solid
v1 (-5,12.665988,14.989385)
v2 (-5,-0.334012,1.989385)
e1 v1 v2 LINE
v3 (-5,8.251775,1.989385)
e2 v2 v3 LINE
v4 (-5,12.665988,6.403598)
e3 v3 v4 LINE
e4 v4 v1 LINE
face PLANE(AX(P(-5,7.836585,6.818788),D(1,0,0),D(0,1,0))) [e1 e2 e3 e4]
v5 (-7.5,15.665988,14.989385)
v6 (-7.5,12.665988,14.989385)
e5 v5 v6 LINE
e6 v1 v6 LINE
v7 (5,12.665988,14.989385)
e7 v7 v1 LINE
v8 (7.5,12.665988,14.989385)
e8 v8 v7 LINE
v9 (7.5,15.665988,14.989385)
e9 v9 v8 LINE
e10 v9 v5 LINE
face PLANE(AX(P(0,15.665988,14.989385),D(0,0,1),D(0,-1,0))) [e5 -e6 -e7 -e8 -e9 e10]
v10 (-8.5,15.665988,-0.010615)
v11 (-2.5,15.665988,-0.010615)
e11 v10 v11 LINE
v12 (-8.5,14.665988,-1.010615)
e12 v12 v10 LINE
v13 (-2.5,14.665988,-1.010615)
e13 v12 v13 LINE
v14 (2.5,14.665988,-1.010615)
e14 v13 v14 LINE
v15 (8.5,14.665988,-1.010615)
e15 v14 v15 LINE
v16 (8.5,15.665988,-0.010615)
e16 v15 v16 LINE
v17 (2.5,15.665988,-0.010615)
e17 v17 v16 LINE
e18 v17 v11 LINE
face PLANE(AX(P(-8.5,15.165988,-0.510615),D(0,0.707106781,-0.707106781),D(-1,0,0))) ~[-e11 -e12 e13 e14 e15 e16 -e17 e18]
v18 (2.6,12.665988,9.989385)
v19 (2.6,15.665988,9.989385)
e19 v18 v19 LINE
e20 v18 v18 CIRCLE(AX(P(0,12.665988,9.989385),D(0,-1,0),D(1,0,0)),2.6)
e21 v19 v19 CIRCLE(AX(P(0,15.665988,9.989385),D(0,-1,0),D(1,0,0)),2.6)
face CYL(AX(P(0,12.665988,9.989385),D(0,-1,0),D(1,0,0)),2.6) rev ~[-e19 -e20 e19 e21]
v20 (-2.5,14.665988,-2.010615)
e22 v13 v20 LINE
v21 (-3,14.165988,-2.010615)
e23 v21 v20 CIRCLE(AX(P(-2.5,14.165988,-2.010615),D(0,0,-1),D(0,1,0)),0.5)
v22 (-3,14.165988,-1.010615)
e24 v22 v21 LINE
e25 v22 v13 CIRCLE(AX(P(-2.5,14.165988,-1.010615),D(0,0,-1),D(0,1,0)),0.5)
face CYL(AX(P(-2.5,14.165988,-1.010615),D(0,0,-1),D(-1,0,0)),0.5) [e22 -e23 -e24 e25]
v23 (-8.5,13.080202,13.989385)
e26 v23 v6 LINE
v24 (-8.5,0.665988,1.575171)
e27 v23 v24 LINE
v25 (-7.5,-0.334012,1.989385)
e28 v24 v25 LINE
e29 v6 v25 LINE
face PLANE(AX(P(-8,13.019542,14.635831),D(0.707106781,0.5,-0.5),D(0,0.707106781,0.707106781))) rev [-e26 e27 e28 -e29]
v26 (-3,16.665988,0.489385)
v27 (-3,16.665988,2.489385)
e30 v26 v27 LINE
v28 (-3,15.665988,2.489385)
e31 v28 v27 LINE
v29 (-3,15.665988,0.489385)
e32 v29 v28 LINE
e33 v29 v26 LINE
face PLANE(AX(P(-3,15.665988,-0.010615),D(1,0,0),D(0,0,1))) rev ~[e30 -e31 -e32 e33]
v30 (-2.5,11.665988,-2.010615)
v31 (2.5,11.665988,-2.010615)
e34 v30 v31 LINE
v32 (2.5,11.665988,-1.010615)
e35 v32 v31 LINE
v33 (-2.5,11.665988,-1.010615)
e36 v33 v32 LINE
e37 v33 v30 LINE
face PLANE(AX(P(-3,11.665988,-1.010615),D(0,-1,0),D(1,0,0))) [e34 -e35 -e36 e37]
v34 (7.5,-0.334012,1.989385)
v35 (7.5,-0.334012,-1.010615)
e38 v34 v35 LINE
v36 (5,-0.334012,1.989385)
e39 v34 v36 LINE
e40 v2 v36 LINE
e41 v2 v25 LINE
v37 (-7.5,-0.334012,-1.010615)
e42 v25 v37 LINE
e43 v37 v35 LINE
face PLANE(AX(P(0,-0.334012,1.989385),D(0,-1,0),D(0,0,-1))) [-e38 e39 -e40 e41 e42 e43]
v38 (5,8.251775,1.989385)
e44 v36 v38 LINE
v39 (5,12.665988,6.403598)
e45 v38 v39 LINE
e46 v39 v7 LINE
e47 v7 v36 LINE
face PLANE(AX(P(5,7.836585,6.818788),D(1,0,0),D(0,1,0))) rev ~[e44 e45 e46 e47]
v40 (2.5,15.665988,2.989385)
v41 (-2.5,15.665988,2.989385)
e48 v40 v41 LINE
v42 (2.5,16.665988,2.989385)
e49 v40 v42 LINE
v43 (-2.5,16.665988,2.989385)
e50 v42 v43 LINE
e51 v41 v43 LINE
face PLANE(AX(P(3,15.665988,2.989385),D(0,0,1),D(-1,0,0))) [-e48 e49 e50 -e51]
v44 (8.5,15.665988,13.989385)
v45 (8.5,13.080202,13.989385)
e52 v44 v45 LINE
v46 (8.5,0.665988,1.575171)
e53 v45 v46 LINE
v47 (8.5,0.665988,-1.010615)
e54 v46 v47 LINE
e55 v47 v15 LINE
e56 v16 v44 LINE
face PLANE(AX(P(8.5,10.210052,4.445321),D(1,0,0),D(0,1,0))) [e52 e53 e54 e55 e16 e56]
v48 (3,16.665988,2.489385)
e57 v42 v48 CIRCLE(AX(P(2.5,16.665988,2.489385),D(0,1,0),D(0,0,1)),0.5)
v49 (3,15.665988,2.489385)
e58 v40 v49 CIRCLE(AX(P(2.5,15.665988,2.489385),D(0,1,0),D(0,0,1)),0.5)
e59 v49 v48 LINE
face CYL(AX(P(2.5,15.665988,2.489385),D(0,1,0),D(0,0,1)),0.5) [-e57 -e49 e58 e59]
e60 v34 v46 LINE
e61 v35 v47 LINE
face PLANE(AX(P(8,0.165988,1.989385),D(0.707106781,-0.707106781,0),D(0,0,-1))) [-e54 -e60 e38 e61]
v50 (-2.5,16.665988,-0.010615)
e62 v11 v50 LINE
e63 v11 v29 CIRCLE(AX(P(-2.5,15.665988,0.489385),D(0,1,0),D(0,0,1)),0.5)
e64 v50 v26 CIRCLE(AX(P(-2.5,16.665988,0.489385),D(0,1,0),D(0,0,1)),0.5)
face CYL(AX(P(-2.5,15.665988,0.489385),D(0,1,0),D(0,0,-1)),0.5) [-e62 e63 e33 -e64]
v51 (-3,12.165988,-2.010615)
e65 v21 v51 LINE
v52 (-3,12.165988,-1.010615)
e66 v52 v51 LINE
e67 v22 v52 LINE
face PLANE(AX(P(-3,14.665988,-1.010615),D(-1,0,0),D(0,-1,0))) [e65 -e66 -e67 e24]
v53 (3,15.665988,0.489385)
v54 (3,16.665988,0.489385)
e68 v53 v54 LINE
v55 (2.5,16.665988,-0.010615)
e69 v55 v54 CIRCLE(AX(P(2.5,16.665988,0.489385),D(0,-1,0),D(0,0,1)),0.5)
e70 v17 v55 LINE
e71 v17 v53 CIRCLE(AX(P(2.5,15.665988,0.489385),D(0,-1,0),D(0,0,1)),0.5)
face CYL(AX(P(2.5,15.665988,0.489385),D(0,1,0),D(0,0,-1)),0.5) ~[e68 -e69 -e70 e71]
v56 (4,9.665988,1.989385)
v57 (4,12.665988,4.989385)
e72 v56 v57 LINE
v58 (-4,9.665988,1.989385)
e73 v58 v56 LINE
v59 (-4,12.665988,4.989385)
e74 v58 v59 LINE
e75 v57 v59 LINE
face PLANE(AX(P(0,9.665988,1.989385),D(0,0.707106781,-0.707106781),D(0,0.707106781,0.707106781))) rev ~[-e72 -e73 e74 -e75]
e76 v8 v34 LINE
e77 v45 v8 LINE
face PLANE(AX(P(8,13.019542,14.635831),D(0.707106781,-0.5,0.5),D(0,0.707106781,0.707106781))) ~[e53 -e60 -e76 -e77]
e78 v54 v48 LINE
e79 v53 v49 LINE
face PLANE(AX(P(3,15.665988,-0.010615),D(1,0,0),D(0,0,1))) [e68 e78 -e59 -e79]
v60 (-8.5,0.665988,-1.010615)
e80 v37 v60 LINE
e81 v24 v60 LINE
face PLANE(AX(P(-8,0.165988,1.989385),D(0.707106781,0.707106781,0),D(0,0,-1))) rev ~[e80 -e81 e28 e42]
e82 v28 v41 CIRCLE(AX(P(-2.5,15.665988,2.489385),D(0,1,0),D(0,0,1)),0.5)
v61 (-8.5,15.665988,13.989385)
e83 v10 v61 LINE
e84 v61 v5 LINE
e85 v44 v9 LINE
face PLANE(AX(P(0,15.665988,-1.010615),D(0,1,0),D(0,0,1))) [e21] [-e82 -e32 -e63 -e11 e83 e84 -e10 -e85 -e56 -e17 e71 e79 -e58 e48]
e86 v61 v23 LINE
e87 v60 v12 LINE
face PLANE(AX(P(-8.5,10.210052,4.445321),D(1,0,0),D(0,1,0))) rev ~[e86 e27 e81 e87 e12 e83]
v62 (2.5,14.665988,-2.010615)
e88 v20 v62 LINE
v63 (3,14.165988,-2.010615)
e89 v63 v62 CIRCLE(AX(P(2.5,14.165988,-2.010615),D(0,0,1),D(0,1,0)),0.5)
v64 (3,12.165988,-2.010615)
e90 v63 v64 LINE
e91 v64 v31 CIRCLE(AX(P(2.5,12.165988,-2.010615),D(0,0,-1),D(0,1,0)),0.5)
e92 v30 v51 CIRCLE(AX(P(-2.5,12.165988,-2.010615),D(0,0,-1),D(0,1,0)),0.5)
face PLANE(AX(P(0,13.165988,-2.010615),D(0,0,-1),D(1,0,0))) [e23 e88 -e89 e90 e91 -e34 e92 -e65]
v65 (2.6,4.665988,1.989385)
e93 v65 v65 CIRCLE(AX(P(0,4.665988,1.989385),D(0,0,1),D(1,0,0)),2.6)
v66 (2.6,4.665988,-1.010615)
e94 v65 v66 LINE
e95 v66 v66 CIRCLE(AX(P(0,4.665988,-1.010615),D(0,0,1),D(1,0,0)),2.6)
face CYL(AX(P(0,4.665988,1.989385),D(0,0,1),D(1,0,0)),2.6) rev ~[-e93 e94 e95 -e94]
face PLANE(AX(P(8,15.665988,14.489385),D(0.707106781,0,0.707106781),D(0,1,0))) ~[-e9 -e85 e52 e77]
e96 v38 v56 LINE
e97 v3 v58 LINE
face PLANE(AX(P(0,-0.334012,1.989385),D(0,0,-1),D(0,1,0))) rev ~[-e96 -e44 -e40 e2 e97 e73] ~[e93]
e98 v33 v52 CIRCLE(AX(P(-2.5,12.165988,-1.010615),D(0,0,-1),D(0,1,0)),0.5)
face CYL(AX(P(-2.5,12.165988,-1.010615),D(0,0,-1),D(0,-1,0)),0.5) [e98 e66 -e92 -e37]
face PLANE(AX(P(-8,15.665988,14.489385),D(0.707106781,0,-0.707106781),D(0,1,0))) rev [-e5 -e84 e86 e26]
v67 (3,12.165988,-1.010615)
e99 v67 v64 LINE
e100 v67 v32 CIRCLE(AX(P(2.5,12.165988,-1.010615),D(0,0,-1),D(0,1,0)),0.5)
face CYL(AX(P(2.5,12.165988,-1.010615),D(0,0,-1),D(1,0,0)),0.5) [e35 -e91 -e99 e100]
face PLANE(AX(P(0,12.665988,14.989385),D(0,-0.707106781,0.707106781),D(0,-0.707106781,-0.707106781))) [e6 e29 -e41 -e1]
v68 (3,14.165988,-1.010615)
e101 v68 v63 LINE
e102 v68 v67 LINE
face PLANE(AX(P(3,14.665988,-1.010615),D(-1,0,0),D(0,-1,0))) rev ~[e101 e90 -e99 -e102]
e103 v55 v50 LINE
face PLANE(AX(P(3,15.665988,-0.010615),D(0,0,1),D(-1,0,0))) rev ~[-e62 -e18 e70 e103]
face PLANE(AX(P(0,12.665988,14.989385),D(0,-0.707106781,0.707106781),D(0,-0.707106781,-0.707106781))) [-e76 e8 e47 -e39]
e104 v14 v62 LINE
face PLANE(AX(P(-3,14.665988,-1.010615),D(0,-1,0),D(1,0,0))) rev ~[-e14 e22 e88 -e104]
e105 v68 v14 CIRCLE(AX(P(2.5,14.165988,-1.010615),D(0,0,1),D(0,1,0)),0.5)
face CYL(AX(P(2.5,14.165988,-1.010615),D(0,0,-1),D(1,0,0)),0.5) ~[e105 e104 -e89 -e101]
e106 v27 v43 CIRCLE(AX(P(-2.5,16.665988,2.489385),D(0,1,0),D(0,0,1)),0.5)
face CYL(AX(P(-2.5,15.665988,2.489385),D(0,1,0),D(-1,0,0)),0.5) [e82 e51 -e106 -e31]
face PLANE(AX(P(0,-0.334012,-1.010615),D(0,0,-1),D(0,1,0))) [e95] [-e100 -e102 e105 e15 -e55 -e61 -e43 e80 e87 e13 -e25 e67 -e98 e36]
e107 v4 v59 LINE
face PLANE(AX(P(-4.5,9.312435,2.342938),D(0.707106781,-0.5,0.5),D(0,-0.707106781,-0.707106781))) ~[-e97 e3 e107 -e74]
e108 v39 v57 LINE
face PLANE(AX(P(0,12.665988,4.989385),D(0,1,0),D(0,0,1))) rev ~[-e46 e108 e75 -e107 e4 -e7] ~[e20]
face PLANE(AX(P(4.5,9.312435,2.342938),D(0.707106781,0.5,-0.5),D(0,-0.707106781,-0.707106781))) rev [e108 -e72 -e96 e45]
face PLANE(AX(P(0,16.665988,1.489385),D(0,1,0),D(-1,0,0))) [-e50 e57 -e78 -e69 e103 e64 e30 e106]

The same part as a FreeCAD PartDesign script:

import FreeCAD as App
import Part
import Sketcher

V = App.Vector


def edges_at(feature, points):
    """Names of the edges that pass closest to the given points."""
    edges = feature.Shape.Edges
    near = lambda p: min(range(len(edges)), key=lambda i: edges[i].distToShape(Part.Vertex(*p))[0])
    return sorted({f"Edge{near(p) + 1}" for p in points})


def add_polygon(sketch, points):
    """Adds a closed chain of lines whose ends are joined by coincident constraints."""
    first, n = sketch.GeometryCount, len(points)
    for a, b in zip(points, points[1:] + points[:1]):
        sketch.addGeometry(Part.LineSegment(App.Vector(*a, 0), App.Vector(*b, 0)), False)
    for i in range(n):
        sketch.addConstraint(Sketcher.Constraint("Coincident", first + i, 2, first + (i + 1) % n, 1))

doc = App.newDocument("Part")
body = doc.addObject("PartDesign::Body", "Body")

# Sketch on YZ plane
sketch1 = body.newObject("Sketcher::SketchObject", "Sketch")
sketch1.AttachmentSupport = (doc.getObject("YZ_Plane"), [""])
sketch1.MapMode = "FlatFace"
add_polygon(sketch1, [(-0.334012, 1.989385), (-0.334012, -1.010615), (15.665988, -1.010615), (15.665988, 14.989385), (12.665988, 14.989385)])  # lines 0-4
sketch1.addConstraint([
    Sketcher.Constraint("Vertical", 0),
    Sketcher.Constraint("Horizontal", 1),
    Sketcher.Constraint("Vertical", 2),
    Sketcher.Constraint("Horizontal", 3),
    Sketcher.Constraint("Equal", 3, 0),
    Sketcher.Constraint("Equal", 1, 2),
    Sketcher.Constraint("DistanceX", 1, 1, 1, 2, 16.0),
    Sketcher.Constraint("DistanceX", 3, 2, 3, 1, 3.0),
    Sketcher.Constraint("DistanceX", 0, 2, -1, 1, 0.334012),
    Sketcher.Constraint("DistanceY", 0, 2, -1, 1, 1.010615),
])
pad1 = body.newObject("PartDesign::Pad", "Pad")
pad1.Profile = sketch1
pad1.Length = 17
pad1.Midplane = True

# Sketch on YZ plane
sketch2 = body.newObject("Sketcher::SketchObject", "Sketch001")
sketch2.AttachmentSupport = (doc.getObject("YZ_Plane"), [""])
sketch2.MapMode = "FlatFace"
add_polygon(sketch2, [(12.665988, 14.989385), (-0.334012, 1.989385), (9.665988, 1.989385), (12.665988, 4.989385)])  # lines 0-3
sketch2.addConstraint([
    Sketcher.Constraint("Horizontal", 1),
    Sketcher.Constraint("Vertical", 3),
    Sketcher.Constraint("Parallel", 0, 2),
    Sketcher.Constraint("Equal", 1, 3),
    Sketcher.Constraint("DistanceX", 1, 1, 1, 2, 10.0),
    Sketcher.Constraint("DistanceX", 1, 2, 2, 2, 3.0),
    Sketcher.Constraint("DistanceX", 0, 2, -1, 1, 0.334012),
    Sketcher.Constraint("DistanceY", -1, 1, 0, 2, 1.989385),
])
pocket1 = body.newObject("PartDesign::Pocket", "Pocket")
pocket1.Profile = sketch2
pocket1.Length = 10
pocket1.Midplane = True

# Sketch on XZ plane
sketch3 = body.newObject("Sketcher::SketchObject", "Sketch002")
sketch3.AttachmentSupport = (doc.getObject("XZ_Plane"), [""])
sketch3.MapMode = "FlatFace"
sketch3.AttachmentOffset = App.Placement(V(0, 0, -12.665988), App.Rotation())
sketch3.addGeometry(Part.Circle(V(0, 9.989385, 0), V(0, 0, 1), 2.6), False)
sketch3.addConstraint([
    Sketcher.Constraint("PointOnObject", 0, 3, -2),
    Sketcher.Constraint("Diameter", 0, 5.2),
    Sketcher.Constraint("DistanceY", -1, 1, 0, 3, 9.989385),
])
pocket2 = body.newObject("PartDesign::Pocket", "Pocket001")
pocket2.Profile = sketch3
pocket2.Length = 25

# Sketch on XY plane
sketch4 = body.newObject("Sketcher::SketchObject", "Sketch003")
sketch4.AttachmentSupport = (doc.getObject("XY_Plane"), [""])
sketch4.MapMode = "FlatFace"
sketch4.AttachmentOffset = App.Placement(V(0, 0, 1.989385), App.Rotation())
sketch4.addGeometry(Part.Circle(V(0, 4.665988, 0), V(0, 0, 1), 2.6), False)
sketch4.addConstraint([
    Sketcher.Constraint("PointOnObject", 0, 3, -2),
    Sketcher.Constraint("Diameter", 0, 5.2),
    Sketcher.Constraint("DistanceY", -1, 1, 0, 3, 4.665988),
])
pocket3 = body.newObject("PartDesign::Pocket", "Pocket002")
pocket3.Profile = sketch4
pocket3.Length = 25
doc.recompute()

chamfer = body.newObject("PartDesign::Chamfer", "Chamfer")
chamfer.Base = (pocket3, edges_at(pocket3, [
    (-8.5, 14.166, 14.989),
    (-8.5, 6.166, 8.489),
    (-8.5, -0.334, 0.489),
    (8.5, -0.334, 0.489),
    (8.5, 6.166, 8.489),
    (8.5, 14.166, 14.989),
    (-5, 11.166, 3.489),
    (5, 11.166, 3.489),
    (0, 15.666, -1.011),
]))
chamfer.Size = 1

# Sketch on XZ plane
sketch5 = body.newObject("Sketcher::SketchObject", "Sketch004")
sketch5.AttachmentSupport = (doc.getObject("XZ_Plane"), [""])
sketch5.MapMode = "FlatFace"
sketch5.AttachmentOffset = App.Placement(V(0, 0, -15.665988), App.Rotation())
add_polygon(sketch5, [(3, 2.989385), (3, -0.010615), (-3, -0.010615), (-3, 2.989385)])  # lines 0-3
sketch5.addConstraint([
    Sketcher.Constraint("Vertical", 0),
    Sketcher.Constraint("Horizontal", 1),
    Sketcher.Constraint("Vertical", 2),
    Sketcher.Constraint("Horizontal", 3),
    Sketcher.Constraint("DistanceX", 1, 2, 1, 1, 6.0),
    Sketcher.Constraint("DistanceY", 0, 2, 0, 1, 3.0),
    Sketcher.Constraint("DistanceX", -1, 1, 0, 2, 3.0),
    Sketcher.Constraint("DistanceY", 0, 2, -1, 1, 0.010615),
])
pad2 = body.newObject("PartDesign::Pad", "Pad001")
pad2.Profile = sketch5
pad2.Length = 1
pad2.Reversed = True

# Sketch on XY plane
sketch6 = body.newObject("Sketcher::SketchObject", "Sketch005")
sketch6.AttachmentSupport = (doc.getObject("XY_Plane"), [""])
sketch6.MapMode = "FlatFace"
sketch6.AttachmentOffset = App.Placement(V(0, 0, -1.010615), App.Rotation())
add_polygon(sketch6, [(-3, 11.665988), (-3, 14.665988), (3, 14.665988), (3, 11.665988)])  # lines 0-3
sketch6.addConstraint([
    Sketcher.Constraint("Vertical", 0),
    Sketcher.Constraint("Horizontal", 1),
    Sketcher.Constraint("Vertical", 2),
    Sketcher.Constraint("Horizontal", 3),
    Sketcher.Constraint("DistanceX", 1, 1, 1, 2, 6.0),
    Sketcher.Constraint("DistanceY", 0, 1, 0, 2, 3.0),
    Sketcher.Constraint("DistanceX", 0, 2, -1, 1, 3.0),
    Sketcher.Constraint("DistanceY", -1, 1, 0, 2, 14.665988),
])
pad3 = body.newObject("PartDesign::Pad", "Pad002")
pad3.Profile = sketch6
pad3.Length = 1
pad3.Reversed = True
doc.recompute()

fillet = body.newObject("PartDesign::Fillet", "Fillet")
fillet.Base = (pad3, edges_at(pad3, [
    (3, 16.166, 2.989),
    (3, 16.166, -0.011),
    (-3, 16.166, 2.989),
    (-3, 16.166, -0.011),
    (-3, 11.666, -1.511),
    (-3, 14.666, -1.511),
    (3, 11.666, -1.511),
    (3, 14.666, -1.511),
]))
fillet.Radius = 0.5

doc.recompute()
